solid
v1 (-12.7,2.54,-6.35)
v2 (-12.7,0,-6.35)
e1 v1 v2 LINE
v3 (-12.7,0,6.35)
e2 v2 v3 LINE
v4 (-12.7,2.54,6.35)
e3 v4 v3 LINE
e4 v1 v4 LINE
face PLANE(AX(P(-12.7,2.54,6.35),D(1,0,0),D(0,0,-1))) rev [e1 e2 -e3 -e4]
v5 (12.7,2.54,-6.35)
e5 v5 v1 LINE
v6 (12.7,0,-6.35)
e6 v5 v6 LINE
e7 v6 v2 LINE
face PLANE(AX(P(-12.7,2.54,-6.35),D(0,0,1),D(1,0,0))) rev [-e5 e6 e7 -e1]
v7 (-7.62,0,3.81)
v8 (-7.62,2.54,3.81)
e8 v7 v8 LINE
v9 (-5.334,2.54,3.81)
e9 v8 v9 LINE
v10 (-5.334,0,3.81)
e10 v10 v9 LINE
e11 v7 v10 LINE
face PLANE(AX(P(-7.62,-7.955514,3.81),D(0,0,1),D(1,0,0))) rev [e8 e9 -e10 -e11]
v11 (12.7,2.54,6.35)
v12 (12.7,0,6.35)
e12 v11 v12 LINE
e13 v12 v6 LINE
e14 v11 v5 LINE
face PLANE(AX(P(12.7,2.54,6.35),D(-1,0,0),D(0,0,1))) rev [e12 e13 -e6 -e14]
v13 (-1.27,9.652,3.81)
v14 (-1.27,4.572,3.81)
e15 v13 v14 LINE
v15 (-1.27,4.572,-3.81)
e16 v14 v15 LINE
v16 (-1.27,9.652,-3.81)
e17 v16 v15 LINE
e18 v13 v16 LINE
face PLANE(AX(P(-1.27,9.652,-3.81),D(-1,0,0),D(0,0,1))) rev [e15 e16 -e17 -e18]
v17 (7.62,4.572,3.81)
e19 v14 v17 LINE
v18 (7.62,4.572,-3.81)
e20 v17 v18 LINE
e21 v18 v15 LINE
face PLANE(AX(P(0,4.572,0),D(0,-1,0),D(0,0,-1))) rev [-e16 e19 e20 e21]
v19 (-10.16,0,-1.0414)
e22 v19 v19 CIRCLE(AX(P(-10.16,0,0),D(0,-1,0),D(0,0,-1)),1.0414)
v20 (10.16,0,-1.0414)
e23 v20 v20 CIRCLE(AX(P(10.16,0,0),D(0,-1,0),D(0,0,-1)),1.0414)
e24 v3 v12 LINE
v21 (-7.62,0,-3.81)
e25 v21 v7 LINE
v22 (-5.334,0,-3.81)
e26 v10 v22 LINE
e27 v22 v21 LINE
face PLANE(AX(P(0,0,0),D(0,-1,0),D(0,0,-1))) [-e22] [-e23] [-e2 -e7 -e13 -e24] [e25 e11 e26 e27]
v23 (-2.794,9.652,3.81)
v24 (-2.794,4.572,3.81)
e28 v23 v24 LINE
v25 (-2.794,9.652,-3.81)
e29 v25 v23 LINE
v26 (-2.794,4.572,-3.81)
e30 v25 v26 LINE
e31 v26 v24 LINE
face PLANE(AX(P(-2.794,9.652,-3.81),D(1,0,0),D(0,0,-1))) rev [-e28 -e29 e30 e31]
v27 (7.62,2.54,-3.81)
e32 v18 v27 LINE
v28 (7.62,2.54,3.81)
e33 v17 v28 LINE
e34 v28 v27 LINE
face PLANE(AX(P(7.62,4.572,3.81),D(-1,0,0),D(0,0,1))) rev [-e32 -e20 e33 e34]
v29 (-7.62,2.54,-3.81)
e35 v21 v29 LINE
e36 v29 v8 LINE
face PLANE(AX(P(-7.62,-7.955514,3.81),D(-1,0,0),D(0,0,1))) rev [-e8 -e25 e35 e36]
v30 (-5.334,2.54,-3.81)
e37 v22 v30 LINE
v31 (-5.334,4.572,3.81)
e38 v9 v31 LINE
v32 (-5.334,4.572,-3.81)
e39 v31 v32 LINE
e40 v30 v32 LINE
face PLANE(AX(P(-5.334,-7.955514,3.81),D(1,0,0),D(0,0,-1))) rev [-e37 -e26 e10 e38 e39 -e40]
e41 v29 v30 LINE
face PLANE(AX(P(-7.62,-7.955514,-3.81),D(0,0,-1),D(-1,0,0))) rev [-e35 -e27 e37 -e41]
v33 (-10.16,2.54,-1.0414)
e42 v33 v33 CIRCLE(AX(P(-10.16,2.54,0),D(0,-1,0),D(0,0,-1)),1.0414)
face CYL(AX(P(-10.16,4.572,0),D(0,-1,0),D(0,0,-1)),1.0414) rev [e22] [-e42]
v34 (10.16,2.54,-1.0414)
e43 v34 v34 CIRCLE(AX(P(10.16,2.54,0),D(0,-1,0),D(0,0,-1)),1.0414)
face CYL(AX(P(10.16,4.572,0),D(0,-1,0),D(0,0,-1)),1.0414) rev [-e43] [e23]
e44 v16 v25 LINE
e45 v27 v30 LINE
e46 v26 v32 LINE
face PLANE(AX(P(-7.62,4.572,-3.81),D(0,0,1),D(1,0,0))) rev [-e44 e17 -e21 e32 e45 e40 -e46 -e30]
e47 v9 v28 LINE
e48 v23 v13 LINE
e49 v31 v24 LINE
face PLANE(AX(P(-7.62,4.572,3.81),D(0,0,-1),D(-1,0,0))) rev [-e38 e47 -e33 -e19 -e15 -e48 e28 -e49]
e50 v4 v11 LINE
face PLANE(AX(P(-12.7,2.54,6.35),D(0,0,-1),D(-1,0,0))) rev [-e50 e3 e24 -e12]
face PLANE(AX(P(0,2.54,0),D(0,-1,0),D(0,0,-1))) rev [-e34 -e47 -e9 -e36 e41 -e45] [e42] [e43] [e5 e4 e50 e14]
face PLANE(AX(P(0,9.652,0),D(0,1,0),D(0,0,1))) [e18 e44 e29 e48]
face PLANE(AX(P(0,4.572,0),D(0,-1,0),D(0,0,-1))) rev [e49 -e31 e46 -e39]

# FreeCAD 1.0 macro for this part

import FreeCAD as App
import Part
import Sketcher

V = App.Vector
Q = App.Units.Quantity


def add_polygon(sketch, points):
    """Adds a closed chain of lines whose ends are joined by coincident constraints."""
    first, n = sketch.GeometryCount, len(points)
    for a, b in zip(points, points[1:] + points[:1]):
        sketch.addGeometry(Part.LineSegment(App.Vector(*a, 0), App.Vector(*b, 0)), False)
    for i in range(n):
        sketch.addConstraint(Sketcher.Constraint("Coincident", first + i, 2, first + (i + 1) % n, 1))

doc = App.newDocument("Part")
body = doc.addObject("PartDesign::Body", "Body")

sketch1 = body.newObject("Sketcher::SketchObject", "Sketch")
sketch1.AttachmentSupport = (doc.getObject("XZ_Plane"), [""])
sketch1.MapMode = "FlatFace"
add_polygon(sketch1, [(-13, -6), (-13, 6), (13, 6), (13, -6)])
sketch1.addConstraint(Sketcher.Constraint("Vertical", 0))
sketch1.addConstraint(Sketcher.Constraint("Horizontal", 1))
sketch1.addConstraint(Sketcher.Constraint("Vertical", 2))
sketch1.addConstraint(Sketcher.Constraint("Horizontal", 3))
sketch1.addConstraint(Sketcher.Constraint("Symmetric", 0, 2, 2, 2, -1, 1))
sketch1.addConstraint(Sketcher.Constraint("DistanceX", 1, 1, 1, 2, Q("1 in")))
sketch1.addConstraint(Sketcher.Constraint("DistanceY", 0, 1, 0, 2, Q("0.5 in")))
pad1 = body.newObject("PartDesign::Pad", "Pad")
pad1.Profile = sketch1
pad1.Length = Q("0.1 in")
pad1.Reversed = True

sketch2 = body.newObject("Sketcher::SketchObject", "Sketch001")
sketch2.AttachmentSupport = (doc.getObject("XZ_Plane"), [""])
sketch2.MapMode = "FlatFace"
sketch2.AttachmentOffset = App.Placement(V(0, 0, -0.1 * 25.4), App.Rotation())
add_polygon(sketch2, [(-8, -4), (-8, 4), (8, 4), (8, -4)])
sketch2.addConstraint(Sketcher.Constraint("Vertical", 0))
sketch2.addConstraint(Sketcher.Constraint("Horizontal", 1))
sketch2.addConstraint(Sketcher.Constraint("Vertical", 2))
sketch2.addConstraint(Sketcher.Constraint("Horizontal", 3))
sketch2.addConstraint(Sketcher.Constraint("Symmetric", 0, 2, 2, 2, -1, 1))
sketch2.addConstraint(Sketcher.Constraint("DistanceX", 1, 1, 1, 2, Q("0.6 in")))
sketch2.addConstraint(Sketcher.Constraint("DistanceY", 0, 1, 0, 2, Q("0.3 in")))
pad2 = body.newObject("PartDesign::Pad", "Pad001")
pad2.Profile = sketch2
pad2.Length = Q("0.08 in")
pad2.Reversed = True

sketch3 = body.newObject("Sketcher::SketchObject", "Sketch002")
sketch3.AttachmentSupport = (doc.getObject("XZ_Plane"), [""])
sketch3.MapMode = "FlatFace"
sketch3.addGeometry(Part.Circle(V(-10.2, 0, 0), V(0, 0, 1), 1), False)
sketch3.addGeometry(Part.Circle(V(10.2, 0, 0), V(0, 0, 1), 1), False)
sketch3.addConstraint(Sketcher.Constraint("Equal", 0, 1))
sketch3.addConstraint(Sketcher.Constraint("Symmetric", 0, 3, 1, 3, -1, 1))
sketch3.addConstraint(Sketcher.Constraint("PointOnObject", 0, 3, -1))
sketch3.addConstraint(Sketcher.Constraint("Diameter", 0, Q("0.082 in")))
sketch3.addConstraint(Sketcher.Constraint("DistanceX", 0, 3, -1, 1, Q("0.4 in")))
pocket1 = body.newObject("PartDesign::Pocket", "Pocket")
pocket1.Profile = sketch3
pocket1.Type = "ThroughAll"

sketch4 = body.newObject("Sketcher::SketchObject", "Sketch003")
sketch4.AttachmentSupport = (doc.getObject("XZ_Plane"), [""])
sketch4.MapMode = "FlatFace"
sketch4.AttachmentOffset = App.Placement(V(0, 0, -0.18 * 25.4), App.Rotation())
add_polygon(sketch4, [(-7.6, -3.8), (-7.6, 3.8), (-5.3, 3.8), (-5.3, -3.8)])
sketch4.addConstraint(Sketcher.Constraint("Vertical", 0))
sketch4.addConstraint(Sketcher.Constraint("Horizontal", 1))
sketch4.addConstraint(Sketcher.Constraint("Vertical", 2))
sketch4.addConstraint(Sketcher.Constraint("Horizontal", 3))
sketch4.addConstraint(Sketcher.Constraint("DistanceY", 0, 1, 0, 2, Q("0.3 in")))
sketch4.addConstraint(Sketcher.Constraint("DistanceX", 1, 1, 1, 2, Q("0.09 in")))
sketch4.addConstraint(Sketcher.Constraint("DistanceX", 0, 2, -1, 1, Q("0.3 in")))
sketch4.addConstraint(Sketcher.Constraint("DistanceY", -1, 1, 0, 2, Q("0.15 in")))
pocket2 = body.newObject("PartDesign::Pocket", "Pocket001")
pocket2.Profile = sketch4
pocket2.Length = Q("0.18 in")
pocket2.Reversed = True

sketch5 = body.newObject("Sketcher::SketchObject", "Sketch004")
sketch5.AttachmentSupport = (doc.getObject("XZ_Plane"), [""])
sketch5.MapMode = "FlatFace"
sketch5.AttachmentOffset = App.Placement(V(0, 0, -0.18 * 25.4), App.Rotation())
add_polygon(sketch5, [(-2.8, -3.8), (-2.8, 3.8), (-1.3, 3.8), (-1.3, -3.8)])
sketch5.addConstraint(Sketcher.Constraint("Vertical", 0))
sketch5.addConstraint(Sketcher.Constraint("Horizontal", 1))
sketch5.addConstraint(Sketcher.Constraint("Vertical", 2))
sketch5.addConstraint(Sketcher.Constraint("Horizontal", 3))
sketch5.addConstraint(Sketcher.Constraint("DistanceY", 0, 1, 0, 2, Q("0.3 in")))
sketch5.addConstraint(Sketcher.Constraint("DistanceX", 1, 1, 1, 2, Q("0.06 in")))
sketch5.addConstraint(Sketcher.Constraint("DistanceX", 0, 2, -1, 1, Q("0.11 in")))
sketch5.addConstraint(Sketcher.Constraint("DistanceY", -1, 1, 0, 2, Q("0.15 in")))
pad3 = body.newObject("PartDesign::Pad", "Pad002")
pad3.Profile = sketch5
pad3.Length = Q("0.2 in")
pad3.Reversed = True

doc.recompute()
